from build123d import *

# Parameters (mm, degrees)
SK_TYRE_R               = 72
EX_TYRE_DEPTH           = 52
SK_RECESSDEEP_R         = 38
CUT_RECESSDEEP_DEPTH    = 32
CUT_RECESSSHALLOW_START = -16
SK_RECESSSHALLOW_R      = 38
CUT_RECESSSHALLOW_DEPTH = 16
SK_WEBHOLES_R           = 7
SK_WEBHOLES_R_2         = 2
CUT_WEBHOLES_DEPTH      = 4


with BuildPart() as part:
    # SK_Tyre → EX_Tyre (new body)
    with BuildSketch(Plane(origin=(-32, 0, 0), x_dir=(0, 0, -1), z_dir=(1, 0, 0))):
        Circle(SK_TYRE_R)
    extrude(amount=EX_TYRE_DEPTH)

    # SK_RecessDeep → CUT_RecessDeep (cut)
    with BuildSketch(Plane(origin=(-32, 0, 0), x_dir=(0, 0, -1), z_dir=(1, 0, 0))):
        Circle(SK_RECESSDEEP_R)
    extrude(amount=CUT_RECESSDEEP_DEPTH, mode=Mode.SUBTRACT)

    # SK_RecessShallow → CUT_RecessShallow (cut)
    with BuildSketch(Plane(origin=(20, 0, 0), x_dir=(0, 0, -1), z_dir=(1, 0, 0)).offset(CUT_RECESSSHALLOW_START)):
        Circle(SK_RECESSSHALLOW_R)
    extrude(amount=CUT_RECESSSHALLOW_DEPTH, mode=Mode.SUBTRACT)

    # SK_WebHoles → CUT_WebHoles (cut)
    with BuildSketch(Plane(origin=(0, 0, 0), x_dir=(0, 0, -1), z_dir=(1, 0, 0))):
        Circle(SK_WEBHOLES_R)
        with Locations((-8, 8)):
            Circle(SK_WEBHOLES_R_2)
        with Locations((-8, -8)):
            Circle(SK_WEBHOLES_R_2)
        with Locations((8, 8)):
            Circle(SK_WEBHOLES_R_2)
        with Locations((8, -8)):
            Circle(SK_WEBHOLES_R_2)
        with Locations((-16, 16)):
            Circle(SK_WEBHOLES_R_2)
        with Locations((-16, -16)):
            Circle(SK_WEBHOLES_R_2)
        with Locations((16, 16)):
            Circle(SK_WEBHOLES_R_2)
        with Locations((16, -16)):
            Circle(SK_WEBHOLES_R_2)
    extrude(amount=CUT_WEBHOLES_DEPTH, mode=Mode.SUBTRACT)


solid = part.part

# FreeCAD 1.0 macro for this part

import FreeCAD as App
import Part
import Sketcher

V = App.Vector
Q = App.Units.Quantity

doc = App.newDocument("Part")
body = doc.addObject("PartDesign::Body", "Body")

# Sketch on YZ plane
sketch1 = body.newObject("Sketcher::SketchObject", "Sketch")
sketch1.AttachmentSupport = (doc.getObject("YZ_Plane"), [""])
sketch1.MapMode = "FlatFace"
sketch1.AttachmentOffset = App.Placement(V(0, 0, -32), App.Rotation())
sketch1.addGeometry(Part.Circle(V(0, 0, 0), V(0, 0, 1), 72), False)
sketch1.addConstraint(Sketcher.Constraint("Coincident", 0, 3, -1, 1))
sketch1.addConstraint(Sketcher.Constraint("Diameter", 0, Q("144 mm")))
pad1 = body.newObject("PartDesign::Pad", "Pad")
pad1.Profile = sketch1
pad1.Length = 52

# Sketch on YZ plane
sketch2 = body.newObject("Sketcher::SketchObject", "Sketch001")
sketch2.AttachmentSupport = (doc.getObject("YZ_Plane"), [""])
sketch2.MapMode = "FlatFace"
sketch2.AttachmentOffset = App.Placement(V(0, 0, -32), App.Rotation())
sketch2.addGeometry(Part.Circle(V(0, 0, 0), V(0, 0, 1), 38), False)
sketch2.addConstraint(Sketcher.Constraint("Coincident", 0, 3, -1, 1))
sketch2.addConstraint(Sketcher.Constraint("Diameter", 0, Q("76 mm")))
pocket1 = body.newObject("PartDesign::Pocket", "Pocket")
pocket1.Profile = sketch2
pocket1.Length = 32
pocket1.Reversed = True

# Sketch on YZ plane
sketch3 = body.newObject("Sketcher::SketchObject", "Sketch002")
sketch3.AttachmentSupport = (doc.getObject("YZ_Plane"), [""])
sketch3.MapMode = "FlatFace"
sketch3.AttachmentOffset = App.Placement(V(0, 0, 4), App.Rotation())
sketch3.addGeometry(Part.Circle(V(0, 0, 0), V(0, 0, 1), 38), False)
sketch3.addConstraint(Sketcher.Constraint("Coincident", 0, 3, -1, 1))
sketch3.addConstraint(Sketcher.Constraint("Diameter", 0, Q("76 mm")))
pocket2 = body.newObject("PartDesign::Pocket", "Pocket001")
pocket2.Profile = sketch3
pocket2.Length = 16
pocket2.Reversed = True

# Sketch on YZ plane
sketch4 = body.newObject("Sketcher::SketchObject", "Sketch003")
sketch4.AttachmentSupport = (doc.getObject("YZ_Plane"), [""])
sketch4.MapMode = "FlatFace"
sketch4.addGeometry(Part.Circle(V(0, 0, 0), V(0, 0, 1), 7), False)
sketch4.addGeometry(Part.Circle(V(8, 8, 0), V(0, 0, 1), 2), False)
sketch4.addGeometry(Part.Circle(V(-8, 8, 0), V(0, 0, 1), 2), False)
sketch4.addGeometry(Part.Circle(V(8, -8, 0), V(0, 0, 1), 2), False)
sketch4.addGeometry(Part.Circle(V(-8, -8, 0), V(0, 0, 1), 2), False)
sketch4.addGeometry(Part.Circle(V(16, 16, 0), V(0, 0, 1), 2), False)
sketch4.addGeometry(Part.Circle(V(-16, 16, 0), V(0, 0, 1), 2), False)
sketch4.addGeometry(Part.Circle(V(16, -16, 0), V(0, 0, 1), 2), False)
sketch4.addGeometry(Part.Circle(V(-16, -16, 0), V(0, 0, 1), 2), False)
sketch4.addConstraint(Sketcher.Constraint("Coincident", 0, 3, -1, 1))
sketch4.addConstraint(Sketcher.Constraint("Equal", 1, 2))
sketch4.addConstraint(Sketcher.Constraint("Equal", 2, 3))
sketch4.addConstraint(Sketcher.Constraint("Equal", 3, 4))
sketch4.addConstraint(Sketcher.Constraint("Equal", 4, 5))
sketch4.addConstraint(Sketcher.Constraint("Equal", 5, 6))
sketch4.addConstraint(Sketcher.Constraint("Equal", 6, 7))
sketch4.addConstraint(Sketcher.Constraint("Equal", 7, 8))
sketch4.addConstraint(Sketcher.Constraint("Symmetric", 2, 3, 3, 3, -1, 1))
sketch4.addConstraint(Sketcher.Constraint("Symmetric", 1, 3, 4, 3, -1, 1))
sketch4.addConstraint(Sketcher.Constraint("Symmetric", 6, 3, 7, 3, -1, 1))
sketch4.addConstraint(Sketcher.Constraint("Symmetric", 5, 3, 8, 3, -1, 1))
sketch4.addConstraint(Sketcher.Constraint("Symmetric", 1, 3, 2, 3, -2))
sketch4.addConstraint(Sketcher.Constraint("Symmetric", 5, 3, 6, 3, -2))
sketch4.addConstraint(Sketcher.Constraint("Diameter", 0, Q("14 mm")))
sketch4.addConstraint(Sketcher.Constraint("Diameter", 1, Q("4 mm")))
sketch4.addConstraint(Sketcher.Constraint("DistanceX", -1, 1, 1, 3, Q("8 mm")))
sketch4.addConstraint(Sketcher.Constraint("DistanceY", -1, 1, 1, 3, Q("8 mm")))
sketch4.addConstraint(Sketcher.Constraint("DistanceX", -1, 1, 5, 3, Q("16 mm")))
sketch4.addConstraint(Sketcher.Constraint("DistanceY", -1, 1, 5, 3, Q("16 mm")))
pocket3 = body.newObject("PartDesign::Pocket", "Pocket002")
pocket3.Profile = sketch4
pocket3.Length = 4
pocket3.Reversed = True

doc.recompute()
